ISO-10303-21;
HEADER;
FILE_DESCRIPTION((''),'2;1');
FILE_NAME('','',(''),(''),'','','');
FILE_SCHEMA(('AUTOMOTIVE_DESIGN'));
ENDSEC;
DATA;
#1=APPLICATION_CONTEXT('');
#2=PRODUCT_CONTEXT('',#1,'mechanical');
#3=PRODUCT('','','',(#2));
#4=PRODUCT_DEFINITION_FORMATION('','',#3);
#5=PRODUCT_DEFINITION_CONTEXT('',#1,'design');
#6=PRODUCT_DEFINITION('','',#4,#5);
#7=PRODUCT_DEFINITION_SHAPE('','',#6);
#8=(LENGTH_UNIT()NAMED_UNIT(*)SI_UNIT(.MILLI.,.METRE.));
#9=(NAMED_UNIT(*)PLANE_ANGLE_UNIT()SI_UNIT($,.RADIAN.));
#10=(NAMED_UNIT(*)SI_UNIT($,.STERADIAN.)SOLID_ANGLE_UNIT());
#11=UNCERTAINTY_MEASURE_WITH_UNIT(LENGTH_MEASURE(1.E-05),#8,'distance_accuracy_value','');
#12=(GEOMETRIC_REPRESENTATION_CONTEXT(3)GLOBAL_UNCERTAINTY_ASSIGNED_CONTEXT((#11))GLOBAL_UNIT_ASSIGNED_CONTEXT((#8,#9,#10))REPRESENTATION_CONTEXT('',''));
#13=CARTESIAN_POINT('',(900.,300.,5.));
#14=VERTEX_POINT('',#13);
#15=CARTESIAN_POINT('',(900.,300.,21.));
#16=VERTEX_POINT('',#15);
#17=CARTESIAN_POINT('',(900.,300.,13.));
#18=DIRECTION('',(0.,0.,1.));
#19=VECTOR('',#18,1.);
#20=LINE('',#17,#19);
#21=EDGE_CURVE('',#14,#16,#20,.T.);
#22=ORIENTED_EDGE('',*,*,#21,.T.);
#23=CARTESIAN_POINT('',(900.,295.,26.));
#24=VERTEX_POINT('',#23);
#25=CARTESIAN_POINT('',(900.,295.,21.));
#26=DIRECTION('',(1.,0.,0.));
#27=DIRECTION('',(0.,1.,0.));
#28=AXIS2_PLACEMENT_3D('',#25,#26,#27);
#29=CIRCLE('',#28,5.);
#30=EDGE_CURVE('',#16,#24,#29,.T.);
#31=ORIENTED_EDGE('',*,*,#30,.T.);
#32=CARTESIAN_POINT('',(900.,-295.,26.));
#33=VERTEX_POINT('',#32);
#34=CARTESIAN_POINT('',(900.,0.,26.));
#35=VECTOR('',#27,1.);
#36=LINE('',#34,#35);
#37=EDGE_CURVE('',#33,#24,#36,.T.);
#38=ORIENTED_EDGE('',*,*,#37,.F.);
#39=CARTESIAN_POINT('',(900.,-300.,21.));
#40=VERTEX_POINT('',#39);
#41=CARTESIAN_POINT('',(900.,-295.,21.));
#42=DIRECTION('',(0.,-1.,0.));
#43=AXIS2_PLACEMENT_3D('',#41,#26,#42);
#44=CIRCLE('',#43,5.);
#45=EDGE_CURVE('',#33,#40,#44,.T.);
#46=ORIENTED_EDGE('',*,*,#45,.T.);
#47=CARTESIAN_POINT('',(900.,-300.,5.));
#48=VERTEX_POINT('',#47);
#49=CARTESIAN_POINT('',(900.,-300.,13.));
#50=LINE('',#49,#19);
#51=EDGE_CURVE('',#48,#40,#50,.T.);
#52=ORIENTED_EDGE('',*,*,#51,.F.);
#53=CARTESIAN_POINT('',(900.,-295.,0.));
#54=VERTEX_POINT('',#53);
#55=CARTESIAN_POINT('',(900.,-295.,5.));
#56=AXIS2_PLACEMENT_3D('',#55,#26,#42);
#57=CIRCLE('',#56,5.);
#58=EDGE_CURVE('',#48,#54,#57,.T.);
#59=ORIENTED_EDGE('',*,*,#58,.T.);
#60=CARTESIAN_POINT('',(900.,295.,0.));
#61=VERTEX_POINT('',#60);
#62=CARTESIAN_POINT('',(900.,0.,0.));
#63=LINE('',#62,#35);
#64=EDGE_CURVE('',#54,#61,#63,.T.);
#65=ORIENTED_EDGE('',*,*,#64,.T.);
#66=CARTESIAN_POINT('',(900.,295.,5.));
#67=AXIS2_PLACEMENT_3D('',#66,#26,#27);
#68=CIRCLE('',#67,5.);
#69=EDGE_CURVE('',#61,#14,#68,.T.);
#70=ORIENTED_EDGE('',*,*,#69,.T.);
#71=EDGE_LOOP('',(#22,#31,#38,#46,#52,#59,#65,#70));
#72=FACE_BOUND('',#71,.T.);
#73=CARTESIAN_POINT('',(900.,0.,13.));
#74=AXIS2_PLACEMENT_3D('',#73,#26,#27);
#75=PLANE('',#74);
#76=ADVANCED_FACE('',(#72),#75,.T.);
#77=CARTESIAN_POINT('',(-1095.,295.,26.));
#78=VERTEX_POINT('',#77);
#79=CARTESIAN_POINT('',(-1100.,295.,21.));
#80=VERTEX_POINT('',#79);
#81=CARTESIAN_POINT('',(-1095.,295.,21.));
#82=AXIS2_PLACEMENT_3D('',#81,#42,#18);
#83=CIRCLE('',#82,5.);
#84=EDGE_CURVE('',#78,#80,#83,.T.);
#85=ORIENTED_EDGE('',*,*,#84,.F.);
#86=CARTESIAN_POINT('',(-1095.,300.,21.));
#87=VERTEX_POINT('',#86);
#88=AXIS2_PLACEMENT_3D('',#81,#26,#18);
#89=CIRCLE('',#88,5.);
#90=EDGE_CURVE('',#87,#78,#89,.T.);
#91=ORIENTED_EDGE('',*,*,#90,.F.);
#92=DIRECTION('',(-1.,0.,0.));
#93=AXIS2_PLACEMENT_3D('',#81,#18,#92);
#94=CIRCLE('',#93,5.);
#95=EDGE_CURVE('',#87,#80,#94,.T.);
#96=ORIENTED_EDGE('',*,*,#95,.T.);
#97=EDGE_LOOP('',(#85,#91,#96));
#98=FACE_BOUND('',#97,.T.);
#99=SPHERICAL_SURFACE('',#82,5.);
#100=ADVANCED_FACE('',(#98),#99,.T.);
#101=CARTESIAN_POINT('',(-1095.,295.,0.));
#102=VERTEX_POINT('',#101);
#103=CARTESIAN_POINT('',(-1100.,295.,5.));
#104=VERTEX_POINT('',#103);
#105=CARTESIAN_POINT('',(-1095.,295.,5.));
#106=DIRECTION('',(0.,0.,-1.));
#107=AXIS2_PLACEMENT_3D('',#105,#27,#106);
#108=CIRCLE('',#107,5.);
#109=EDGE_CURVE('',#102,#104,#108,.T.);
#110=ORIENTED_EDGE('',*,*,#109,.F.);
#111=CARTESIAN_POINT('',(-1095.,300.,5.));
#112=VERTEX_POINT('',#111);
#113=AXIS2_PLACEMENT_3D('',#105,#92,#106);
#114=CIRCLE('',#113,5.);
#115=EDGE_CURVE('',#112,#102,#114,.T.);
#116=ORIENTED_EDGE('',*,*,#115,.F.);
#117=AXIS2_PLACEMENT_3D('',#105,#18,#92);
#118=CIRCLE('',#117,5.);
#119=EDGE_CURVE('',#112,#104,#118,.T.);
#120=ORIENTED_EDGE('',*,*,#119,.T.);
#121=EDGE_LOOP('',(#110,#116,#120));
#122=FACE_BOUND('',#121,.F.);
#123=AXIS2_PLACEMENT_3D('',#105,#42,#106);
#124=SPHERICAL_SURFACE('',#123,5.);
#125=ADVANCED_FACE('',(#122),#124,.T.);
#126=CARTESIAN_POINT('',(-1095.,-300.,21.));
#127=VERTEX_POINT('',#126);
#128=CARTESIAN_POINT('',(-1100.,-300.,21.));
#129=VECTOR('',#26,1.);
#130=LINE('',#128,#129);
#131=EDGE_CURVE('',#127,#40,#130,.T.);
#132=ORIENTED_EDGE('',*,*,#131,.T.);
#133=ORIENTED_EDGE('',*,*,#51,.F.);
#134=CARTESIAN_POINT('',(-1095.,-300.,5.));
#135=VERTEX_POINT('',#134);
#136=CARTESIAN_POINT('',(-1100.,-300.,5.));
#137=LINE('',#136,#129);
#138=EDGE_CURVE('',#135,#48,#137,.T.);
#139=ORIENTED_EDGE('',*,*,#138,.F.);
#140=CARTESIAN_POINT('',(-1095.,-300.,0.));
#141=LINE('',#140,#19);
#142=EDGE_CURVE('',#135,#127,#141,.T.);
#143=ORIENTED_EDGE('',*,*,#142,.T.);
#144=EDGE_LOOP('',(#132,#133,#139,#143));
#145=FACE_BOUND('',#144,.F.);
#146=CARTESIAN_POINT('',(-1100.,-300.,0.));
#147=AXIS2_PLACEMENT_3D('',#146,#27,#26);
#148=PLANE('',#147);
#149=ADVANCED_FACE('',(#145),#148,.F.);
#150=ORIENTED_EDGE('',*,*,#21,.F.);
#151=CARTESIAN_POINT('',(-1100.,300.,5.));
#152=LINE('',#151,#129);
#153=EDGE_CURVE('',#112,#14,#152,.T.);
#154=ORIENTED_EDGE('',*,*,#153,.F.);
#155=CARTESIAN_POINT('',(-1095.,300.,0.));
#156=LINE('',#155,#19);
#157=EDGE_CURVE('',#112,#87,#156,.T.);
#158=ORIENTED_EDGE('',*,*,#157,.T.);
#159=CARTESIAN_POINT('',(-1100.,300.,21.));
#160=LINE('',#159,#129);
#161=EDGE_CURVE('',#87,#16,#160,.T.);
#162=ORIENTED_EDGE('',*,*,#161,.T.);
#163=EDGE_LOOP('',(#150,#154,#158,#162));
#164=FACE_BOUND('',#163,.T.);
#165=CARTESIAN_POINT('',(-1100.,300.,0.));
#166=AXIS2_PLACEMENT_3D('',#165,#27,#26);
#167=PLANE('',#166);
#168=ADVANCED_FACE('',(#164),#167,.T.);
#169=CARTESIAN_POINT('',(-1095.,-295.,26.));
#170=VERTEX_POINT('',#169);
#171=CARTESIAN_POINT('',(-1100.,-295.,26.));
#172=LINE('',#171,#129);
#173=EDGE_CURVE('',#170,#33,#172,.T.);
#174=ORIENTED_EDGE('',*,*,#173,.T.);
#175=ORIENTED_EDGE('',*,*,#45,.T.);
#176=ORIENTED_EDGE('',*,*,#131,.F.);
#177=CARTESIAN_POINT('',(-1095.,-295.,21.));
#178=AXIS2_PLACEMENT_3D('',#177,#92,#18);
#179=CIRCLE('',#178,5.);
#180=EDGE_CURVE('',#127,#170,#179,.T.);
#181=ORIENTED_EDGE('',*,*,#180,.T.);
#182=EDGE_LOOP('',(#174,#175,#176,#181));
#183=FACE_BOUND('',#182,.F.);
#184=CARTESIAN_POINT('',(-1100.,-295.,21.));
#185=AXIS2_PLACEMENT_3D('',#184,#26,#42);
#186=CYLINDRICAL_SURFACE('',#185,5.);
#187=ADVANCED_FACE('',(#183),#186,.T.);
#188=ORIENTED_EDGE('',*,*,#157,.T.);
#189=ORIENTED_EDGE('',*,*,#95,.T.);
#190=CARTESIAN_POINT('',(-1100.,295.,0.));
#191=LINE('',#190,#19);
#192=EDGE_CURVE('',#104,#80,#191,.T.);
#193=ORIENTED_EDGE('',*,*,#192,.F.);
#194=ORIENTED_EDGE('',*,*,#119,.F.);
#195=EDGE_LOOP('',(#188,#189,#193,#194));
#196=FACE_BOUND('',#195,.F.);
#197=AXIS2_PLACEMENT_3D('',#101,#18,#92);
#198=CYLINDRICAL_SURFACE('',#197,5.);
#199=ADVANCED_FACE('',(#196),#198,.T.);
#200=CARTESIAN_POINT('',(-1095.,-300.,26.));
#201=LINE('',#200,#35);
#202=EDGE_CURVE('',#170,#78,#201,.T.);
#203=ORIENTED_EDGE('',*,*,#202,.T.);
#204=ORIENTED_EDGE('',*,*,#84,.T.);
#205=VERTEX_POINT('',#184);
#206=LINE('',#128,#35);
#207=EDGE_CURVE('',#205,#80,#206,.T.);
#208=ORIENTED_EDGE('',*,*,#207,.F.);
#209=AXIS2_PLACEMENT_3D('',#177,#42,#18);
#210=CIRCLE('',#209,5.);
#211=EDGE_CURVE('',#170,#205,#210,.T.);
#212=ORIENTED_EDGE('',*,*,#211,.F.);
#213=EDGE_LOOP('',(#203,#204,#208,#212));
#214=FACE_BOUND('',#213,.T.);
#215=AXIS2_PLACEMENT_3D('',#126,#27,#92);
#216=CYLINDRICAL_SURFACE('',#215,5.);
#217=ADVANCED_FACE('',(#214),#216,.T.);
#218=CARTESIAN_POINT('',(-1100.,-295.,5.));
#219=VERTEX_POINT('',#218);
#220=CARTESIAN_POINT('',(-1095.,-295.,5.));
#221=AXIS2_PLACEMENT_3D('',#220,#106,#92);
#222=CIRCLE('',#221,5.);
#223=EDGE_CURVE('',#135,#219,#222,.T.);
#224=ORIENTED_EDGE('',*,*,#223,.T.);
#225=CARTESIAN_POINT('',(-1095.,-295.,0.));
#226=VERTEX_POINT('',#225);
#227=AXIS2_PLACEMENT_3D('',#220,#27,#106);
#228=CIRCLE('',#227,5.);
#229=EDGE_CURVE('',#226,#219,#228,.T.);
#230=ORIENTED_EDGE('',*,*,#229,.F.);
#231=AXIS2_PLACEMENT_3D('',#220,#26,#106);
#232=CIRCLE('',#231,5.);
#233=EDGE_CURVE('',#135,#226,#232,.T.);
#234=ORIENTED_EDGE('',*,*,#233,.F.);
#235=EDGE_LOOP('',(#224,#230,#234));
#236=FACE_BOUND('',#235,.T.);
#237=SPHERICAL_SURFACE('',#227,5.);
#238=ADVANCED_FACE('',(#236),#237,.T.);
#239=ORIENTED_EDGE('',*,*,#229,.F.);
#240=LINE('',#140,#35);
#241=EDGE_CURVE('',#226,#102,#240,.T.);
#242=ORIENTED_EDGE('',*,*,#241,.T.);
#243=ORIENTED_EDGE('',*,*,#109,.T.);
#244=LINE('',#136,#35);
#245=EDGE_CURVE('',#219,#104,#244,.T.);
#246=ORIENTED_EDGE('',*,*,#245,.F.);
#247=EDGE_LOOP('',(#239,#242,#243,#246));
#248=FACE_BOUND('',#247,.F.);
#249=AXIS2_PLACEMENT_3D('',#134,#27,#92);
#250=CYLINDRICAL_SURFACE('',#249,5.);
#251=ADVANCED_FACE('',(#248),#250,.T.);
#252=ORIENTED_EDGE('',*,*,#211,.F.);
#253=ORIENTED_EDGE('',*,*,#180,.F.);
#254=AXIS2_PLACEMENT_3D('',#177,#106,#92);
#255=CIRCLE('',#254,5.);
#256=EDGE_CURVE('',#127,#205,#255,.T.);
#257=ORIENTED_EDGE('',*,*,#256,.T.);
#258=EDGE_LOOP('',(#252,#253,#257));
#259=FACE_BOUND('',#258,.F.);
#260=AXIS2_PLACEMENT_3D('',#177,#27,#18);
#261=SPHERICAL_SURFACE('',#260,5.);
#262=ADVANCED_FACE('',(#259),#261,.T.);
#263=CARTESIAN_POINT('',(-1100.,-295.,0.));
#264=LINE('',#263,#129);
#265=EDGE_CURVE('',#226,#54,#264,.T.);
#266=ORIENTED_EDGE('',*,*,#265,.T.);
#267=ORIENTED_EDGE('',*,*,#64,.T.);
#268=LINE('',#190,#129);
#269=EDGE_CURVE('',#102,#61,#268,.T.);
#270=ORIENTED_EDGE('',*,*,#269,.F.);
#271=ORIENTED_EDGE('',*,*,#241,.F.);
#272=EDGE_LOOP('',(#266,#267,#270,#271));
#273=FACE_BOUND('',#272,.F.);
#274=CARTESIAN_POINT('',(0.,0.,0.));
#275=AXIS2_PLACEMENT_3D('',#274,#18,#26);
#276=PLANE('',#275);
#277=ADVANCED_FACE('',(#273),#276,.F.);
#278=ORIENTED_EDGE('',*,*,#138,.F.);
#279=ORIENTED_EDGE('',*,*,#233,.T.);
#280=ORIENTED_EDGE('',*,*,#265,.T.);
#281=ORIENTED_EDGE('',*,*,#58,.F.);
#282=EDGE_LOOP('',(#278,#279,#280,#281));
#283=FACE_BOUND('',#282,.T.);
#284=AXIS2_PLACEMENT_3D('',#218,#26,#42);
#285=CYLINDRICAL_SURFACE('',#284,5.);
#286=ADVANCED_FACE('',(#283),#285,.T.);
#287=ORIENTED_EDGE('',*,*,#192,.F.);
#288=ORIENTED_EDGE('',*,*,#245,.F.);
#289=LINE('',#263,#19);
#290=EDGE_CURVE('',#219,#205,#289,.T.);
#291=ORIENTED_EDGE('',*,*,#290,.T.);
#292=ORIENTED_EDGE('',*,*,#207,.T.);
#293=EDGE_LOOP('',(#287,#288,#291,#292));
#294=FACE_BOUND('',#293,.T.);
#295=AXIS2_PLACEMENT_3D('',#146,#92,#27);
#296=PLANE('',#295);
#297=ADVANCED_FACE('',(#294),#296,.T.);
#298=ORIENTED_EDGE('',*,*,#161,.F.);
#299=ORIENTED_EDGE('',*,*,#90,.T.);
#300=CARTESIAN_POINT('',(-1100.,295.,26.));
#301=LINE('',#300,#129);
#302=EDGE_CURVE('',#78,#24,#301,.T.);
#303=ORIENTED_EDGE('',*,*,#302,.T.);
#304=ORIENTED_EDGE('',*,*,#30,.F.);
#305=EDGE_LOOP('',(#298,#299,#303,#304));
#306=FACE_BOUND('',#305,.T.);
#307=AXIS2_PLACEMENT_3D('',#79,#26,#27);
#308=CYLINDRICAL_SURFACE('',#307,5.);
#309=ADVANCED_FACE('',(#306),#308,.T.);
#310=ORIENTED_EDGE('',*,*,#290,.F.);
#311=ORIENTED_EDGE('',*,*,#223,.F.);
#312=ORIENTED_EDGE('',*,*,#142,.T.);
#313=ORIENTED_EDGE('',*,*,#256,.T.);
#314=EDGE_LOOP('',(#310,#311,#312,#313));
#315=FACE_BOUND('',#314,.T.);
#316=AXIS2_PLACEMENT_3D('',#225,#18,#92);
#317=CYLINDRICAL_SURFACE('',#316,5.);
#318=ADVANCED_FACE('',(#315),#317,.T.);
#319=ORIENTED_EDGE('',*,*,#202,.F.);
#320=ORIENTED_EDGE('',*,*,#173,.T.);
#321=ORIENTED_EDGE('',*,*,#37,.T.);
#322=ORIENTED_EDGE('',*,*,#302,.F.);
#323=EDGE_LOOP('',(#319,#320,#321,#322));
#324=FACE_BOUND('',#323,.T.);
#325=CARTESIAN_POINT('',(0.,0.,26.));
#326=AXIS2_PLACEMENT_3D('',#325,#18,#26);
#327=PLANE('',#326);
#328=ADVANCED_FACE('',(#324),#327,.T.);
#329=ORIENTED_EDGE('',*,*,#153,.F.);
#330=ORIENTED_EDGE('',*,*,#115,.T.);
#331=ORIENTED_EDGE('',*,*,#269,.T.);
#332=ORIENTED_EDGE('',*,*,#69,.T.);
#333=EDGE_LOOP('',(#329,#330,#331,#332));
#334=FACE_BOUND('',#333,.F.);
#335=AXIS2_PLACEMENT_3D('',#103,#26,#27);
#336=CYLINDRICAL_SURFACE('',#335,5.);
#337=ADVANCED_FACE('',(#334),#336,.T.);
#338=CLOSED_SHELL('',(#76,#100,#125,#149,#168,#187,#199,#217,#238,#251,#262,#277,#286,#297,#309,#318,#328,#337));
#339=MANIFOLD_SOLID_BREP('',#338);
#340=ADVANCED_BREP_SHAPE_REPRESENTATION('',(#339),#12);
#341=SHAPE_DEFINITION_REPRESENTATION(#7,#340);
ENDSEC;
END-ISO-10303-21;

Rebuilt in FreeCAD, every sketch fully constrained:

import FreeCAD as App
import Part
import Sketcher
Q = App.Units.Quantity

doc = App.newDocument("Part")
body = doc.addObject("PartDesign::Body", "Body")

# Sketch on XY plane
sketch1 = body.newObject("Sketcher::SketchObject", "Sketch")
sketch1.AttachmentSupport = (doc.getObject("XY_Plane"), [""])
sketch1.MapMode = "FlatFace"
sketch1.addGeometry(Part.LineSegment(App.Vector(-1100, 300, 0), App.Vector(-1100, -300, 0)), False)
sketch1.addGeometry(Part.LineSegment(App.Vector(-1100, -300, 0), App.Vector(1100, -300, 0)), False)
sketch1.addGeometry(Part.LineSegment(App.Vector(1100, -300, 0), App.Vector(1100, 300, 0)), False)
sketch1.addGeometry(Part.LineSegment(App.Vector(1100, 300, 0), App.Vector(-1100, 300, 0)), False)
sketch1.addConstraint(Sketcher.Constraint("Coincident", 0, 2, 1, 1))
sketch1.addConstraint(Sketcher.Constraint("Coincident", 1, 2, 2, 1))
sketch1.addConstraint(Sketcher.Constraint("Coincident", 2, 2, 3, 1))
sketch1.addConstraint(Sketcher.Constraint("Coincident", 3, 2, 0, 1))
sketch1.addConstraint(Sketcher.Constraint("Vertical", 0))
sketch1.addConstraint(Sketcher.Constraint("Horizontal", 1))
sketch1.addConstraint(Sketcher.Constraint("Vertical", 2))
sketch1.addConstraint(Sketcher.Constraint("Horizontal", 3))
sketch1.addConstraint(Sketcher.Constraint("Symmetric", 0, 2, 2, 2, -1, 1))
sketch1.addConstraint(Sketcher.Constraint("DistanceX", 1, 1, 1, 2, Q("2200 mm")))
sketch1.addConstraint(Sketcher.Constraint("DistanceY", 0, 2, 0, 1, Q("600 mm")))
pad1 = body.newObject("PartDesign::Pad", "Pad")
pad1.Profile = sketch1
pad1.Length = 26
doc.recompute()

fillet = body.newObject("PartDesign::Fillet", "Fillet")
fillet.Base = (pad1, ["Edge1"])
fillet.UseAllEdges = True
fillet.Radius = 5

# Sketch on YZ plane
sketch2 = body.newObject("Sketcher::SketchObject", "Sketch001")
sketch2.AttachmentSupport = (doc.getObject("YZ_Plane"), [""])
sketch2.MapMode = "FlatFace"
sketch2.AttachmentOffset = App.Placement(App.Vector(0, 0, 1100), App.Rotation())
sketch2.addGeometry(Part.LineSegment(App.Vector(-300, 26, 0), App.Vector(-300, 0, 0)), False)
sketch2.addGeometry(Part.LineSegment(App.Vector(-300, 0, 0), App.Vector(300, 0, 0)), False)
sketch2.addGeometry(Part.LineSegment(App.Vector(300, 0, 0), App.Vector(300, 26, 0)), False)
sketch2.addGeometry(Part.LineSegment(App.Vector(300, 26, 0), App.Vector(-300, 26, 0)), False)
sketch2.addConstraint(Sketcher.Constraint("Coincident", 0, 2, 1, 1))
sketch2.addConstraint(Sketcher.Constraint("Coincident", 1, 2, 2, 1))
sketch2.addConstraint(Sketcher.Constraint("Coincident", 2, 2, 3, 1))
sketch2.addConstraint(Sketcher.Constraint("Coincident", 3, 2, 0, 1))
sketch2.addConstraint(Sketcher.Constraint("Vertical", 0))
sketch2.addConstraint(Sketcher.Constraint("Horizontal", 1))
sketch2.addConstraint(Sketcher.Constraint("Vertical", 2))
sketch2.addConstraint(Sketcher.Constraint("Horizontal", 3))
sketch2.addConstraint(Sketcher.Constraint("Symmetric", 0, 2, 1, 2, -1, 1))
sketch2.addConstraint(Sketcher.Constraint("DistanceX", 1, 1, 1, 2, Q("600 mm")))
sketch2.addConstraint(Sketcher.Constraint("DistanceY", 0, 2, 0, 1, Q("26 mm")))
pocket1 = body.newObject("PartDesign::Pocket", "Pocket")
pocket1.Profile = sketch2
pocket1.Length = 200

doc.recompute()
